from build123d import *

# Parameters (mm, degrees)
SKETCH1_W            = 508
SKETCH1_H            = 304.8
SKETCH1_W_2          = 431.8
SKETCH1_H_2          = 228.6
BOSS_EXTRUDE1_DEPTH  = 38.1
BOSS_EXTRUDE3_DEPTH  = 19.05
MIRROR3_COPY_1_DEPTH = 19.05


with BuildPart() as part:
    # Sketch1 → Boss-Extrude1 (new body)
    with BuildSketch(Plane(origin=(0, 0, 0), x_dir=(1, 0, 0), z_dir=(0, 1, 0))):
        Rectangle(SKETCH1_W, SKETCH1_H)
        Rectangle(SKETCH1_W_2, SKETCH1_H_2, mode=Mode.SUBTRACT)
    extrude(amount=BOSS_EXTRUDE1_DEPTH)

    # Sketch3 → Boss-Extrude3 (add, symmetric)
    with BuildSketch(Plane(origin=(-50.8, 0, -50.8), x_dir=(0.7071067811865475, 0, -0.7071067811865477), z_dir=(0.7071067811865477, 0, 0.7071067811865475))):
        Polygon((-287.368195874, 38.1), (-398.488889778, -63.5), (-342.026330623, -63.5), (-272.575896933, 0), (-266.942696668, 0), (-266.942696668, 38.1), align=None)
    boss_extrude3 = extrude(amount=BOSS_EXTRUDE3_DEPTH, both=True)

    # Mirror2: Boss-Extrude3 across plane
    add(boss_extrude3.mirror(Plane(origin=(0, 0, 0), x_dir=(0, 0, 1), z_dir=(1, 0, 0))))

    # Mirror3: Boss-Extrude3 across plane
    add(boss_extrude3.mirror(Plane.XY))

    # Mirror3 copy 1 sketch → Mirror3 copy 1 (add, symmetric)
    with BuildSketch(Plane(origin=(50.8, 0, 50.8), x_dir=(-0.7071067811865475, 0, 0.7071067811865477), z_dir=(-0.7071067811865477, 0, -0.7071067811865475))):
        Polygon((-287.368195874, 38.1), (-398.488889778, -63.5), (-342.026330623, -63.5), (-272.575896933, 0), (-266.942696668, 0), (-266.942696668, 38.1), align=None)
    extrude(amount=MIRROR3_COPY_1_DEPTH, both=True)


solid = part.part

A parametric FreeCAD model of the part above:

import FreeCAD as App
import Part
import Sketcher
from FreeCAD import Vector
Q = App.Units.Quantity


def add_polygon(sketch, points):
    """Adds a closed chain of lines whose ends are joined by coincident constraints."""
    first, n = sketch.GeometryCount, len(points)
    for a, b in zip(points, points[1:] + points[:1]):
        sketch.addGeometry(Part.LineSegment(App.Vector(*a, 0), App.Vector(*b, 0)), False)
    for i in range(n):
        sketch.addConstraint(Sketcher.Constraint("Coincident", first + i, 2, first + (i + 1) % n, 1))

doc = App.newDocument("Part")
body = doc.addObject("PartDesign::Body", "Body")

sketch1 = body.newObject("Sketcher::SketchObject", "Sketch")
sketch1.AttachmentSupport = (doc.getObject("XZ_Plane"), [""])
sketch1.MapMode = "FlatFace"
add_polygon(sketch1, [(-254, -152), (-254, 152), (254, 152), (254, -152)])
add_polygon(sketch1, [(216, 114), (-216, 114), (-216, -114), (216, -114)])
sketch1.addConstraint([
    Sketcher.Constraint("Vertical", 0),
    Sketcher.Constraint("Horizontal", 1),
    Sketcher.Constraint("Vertical", 2),
    Sketcher.Constraint("Horizontal", 3),
    Sketcher.Constraint("Horizontal", 4),
    Sketcher.Constraint("Vertical", 5),
    Sketcher.Constraint("Horizontal", 6),
    Sketcher.Constraint("Vertical", 7),
    Sketcher.Constraint("Symmetric", 0, 2, 2, 2, -1, 1),
    Sketcher.Constraint("Symmetric", 4, 2, 6, 2, -1, 1),
    Sketcher.Constraint("DistanceX", 1, 1, 1, 2, Q("20 in")),
    Sketcher.Constraint("DistanceX", 4, 2, 4, 1, Q("17 in")),
    Sketcher.Constraint("DistanceY", 0, 1, 0, 2, Q("12 in")),
    Sketcher.Constraint("DistanceY", 5, 2, 5, 1, Q("9 in")),
])
pad1 = body.newObject("PartDesign::Pad", "Pad")
pad1.Profile = sketch1
pad1.Length = Q("1.5 in")
pad1.Reversed = True

sketch2 = body.newObject("Sketcher::SketchObject", "Sketch001")
sketch2.Placement = App.Placement(Vector(-50.8, 0, -50.8), App.Rotation(Vector(0.707106781, 0, -0.707106781), Vector(0, 0.999999999, 0), Vector(0.707106781, 0, 0.707106781), "ZXY"))
add_polygon(sketch2, [(-287, 38), (-398, -63), (-342, -63), (-273, 0), (-267, 0), (-267, 38)])
sketch2.addConstraint([
    Sketcher.Constraint("Horizontal", 1),
    Sketcher.Constraint("Horizontal", 3),
    Sketcher.Constraint("Vertical", 4),
    Sketcher.Constraint("Horizontal", 5),
    Sketcher.Constraint("PointOnObject", 2, 2, -1),
    Sketcher.Constraint("Parallel", 0, 2),
    Sketcher.Constraint("DistanceY", 4, 1, 4, 2, Q("1.5 in")),
    Sketcher.Constraint("DistanceY", 1, 2, 4, 2, Q("4 in")),
    Sketcher.Constraint("DistanceX", 3, 1, 3, 2, 5.6332),
    Sketcher.Constraint("DistanceX", 5, 2, 5, 1, 20.425499),
    Sketcher.Constraint("DistanceX", 1, 1, 1, 2, 56.462559),
    Sketcher.Constraint("DistanceX", 0, 2, -1, 1, 398.48889),
])
pad2 = body.newObject("PartDesign::Pad", "Pad001")
pad2.Profile = sketch2
pad2.Length = Q("1.5 in")
pad2.Midplane = True
doc.recompute()

mirrored = body.newObject("PartDesign::Mirrored", "Mirrored")
mirrored.Originals = [pad2]
mirrored.MirrorPlane = (doc.getObject("YZ_Plane"), [""])
body.Tip = mirrored
doc.recompute()

mirrored2 = body.newObject("PartDesign::Mirrored", "Mirrored001")
mirrored2.Originals = [pad2]
mirrored2.MirrorPlane = (doc.getObject("XY_Plane"), [""])
body.Tip = mirrored2

sketch3 = body.newObject("Sketcher::SketchObject", "Sketch002")
sketch3.Placement = App.Placement(Vector(50.8, 0, 50.8), App.Rotation(Vector(-0.707106781, 0, 0.707106781), Vector(0, 0.999999999, 0), Vector(-0.707106781, 0, -0.707106781), "ZXY"))
add_polygon(sketch3, [(-287, 38), (-398, -63), (-342, -63), (-273, 0), (-267, 0), (-267, 38)])
sketch3.addConstraint([
    Sketcher.Constraint("Horizontal", 1),
    Sketcher.Constraint("Horizontal", 3),
    Sketcher.Constraint("Vertical", 4),
    Sketcher.Constraint("Horizontal", 5),
    Sketcher.Constraint("PointOnObject", 2, 2, -1),
    Sketcher.Constraint("Parallel", 0, 2),
    Sketcher.Constraint("DistanceY", 4, 1, 4, 2, Q("1.5 in")),
    Sketcher.Constraint("DistanceY", 1, 2, 4, 2, Q("4 in")),
    Sketcher.Constraint("DistanceX", 3, 1, 3, 2, 5.6332),
    Sketcher.Constraint("DistanceX", 5, 2, 5, 1, 20.425499),
    Sketcher.Constraint("DistanceX", 1, 1, 1, 2, 56.462559),
    Sketcher.Constraint("DistanceX", 0, 2, -1, 1, 398.48889),
])
pad3 = body.newObject("PartDesign::Pad", "Pad002")
pad3.Profile = sketch3
pad3.Length = Q("1.5 in")
pad3.Midplane = True

doc.recompute()
